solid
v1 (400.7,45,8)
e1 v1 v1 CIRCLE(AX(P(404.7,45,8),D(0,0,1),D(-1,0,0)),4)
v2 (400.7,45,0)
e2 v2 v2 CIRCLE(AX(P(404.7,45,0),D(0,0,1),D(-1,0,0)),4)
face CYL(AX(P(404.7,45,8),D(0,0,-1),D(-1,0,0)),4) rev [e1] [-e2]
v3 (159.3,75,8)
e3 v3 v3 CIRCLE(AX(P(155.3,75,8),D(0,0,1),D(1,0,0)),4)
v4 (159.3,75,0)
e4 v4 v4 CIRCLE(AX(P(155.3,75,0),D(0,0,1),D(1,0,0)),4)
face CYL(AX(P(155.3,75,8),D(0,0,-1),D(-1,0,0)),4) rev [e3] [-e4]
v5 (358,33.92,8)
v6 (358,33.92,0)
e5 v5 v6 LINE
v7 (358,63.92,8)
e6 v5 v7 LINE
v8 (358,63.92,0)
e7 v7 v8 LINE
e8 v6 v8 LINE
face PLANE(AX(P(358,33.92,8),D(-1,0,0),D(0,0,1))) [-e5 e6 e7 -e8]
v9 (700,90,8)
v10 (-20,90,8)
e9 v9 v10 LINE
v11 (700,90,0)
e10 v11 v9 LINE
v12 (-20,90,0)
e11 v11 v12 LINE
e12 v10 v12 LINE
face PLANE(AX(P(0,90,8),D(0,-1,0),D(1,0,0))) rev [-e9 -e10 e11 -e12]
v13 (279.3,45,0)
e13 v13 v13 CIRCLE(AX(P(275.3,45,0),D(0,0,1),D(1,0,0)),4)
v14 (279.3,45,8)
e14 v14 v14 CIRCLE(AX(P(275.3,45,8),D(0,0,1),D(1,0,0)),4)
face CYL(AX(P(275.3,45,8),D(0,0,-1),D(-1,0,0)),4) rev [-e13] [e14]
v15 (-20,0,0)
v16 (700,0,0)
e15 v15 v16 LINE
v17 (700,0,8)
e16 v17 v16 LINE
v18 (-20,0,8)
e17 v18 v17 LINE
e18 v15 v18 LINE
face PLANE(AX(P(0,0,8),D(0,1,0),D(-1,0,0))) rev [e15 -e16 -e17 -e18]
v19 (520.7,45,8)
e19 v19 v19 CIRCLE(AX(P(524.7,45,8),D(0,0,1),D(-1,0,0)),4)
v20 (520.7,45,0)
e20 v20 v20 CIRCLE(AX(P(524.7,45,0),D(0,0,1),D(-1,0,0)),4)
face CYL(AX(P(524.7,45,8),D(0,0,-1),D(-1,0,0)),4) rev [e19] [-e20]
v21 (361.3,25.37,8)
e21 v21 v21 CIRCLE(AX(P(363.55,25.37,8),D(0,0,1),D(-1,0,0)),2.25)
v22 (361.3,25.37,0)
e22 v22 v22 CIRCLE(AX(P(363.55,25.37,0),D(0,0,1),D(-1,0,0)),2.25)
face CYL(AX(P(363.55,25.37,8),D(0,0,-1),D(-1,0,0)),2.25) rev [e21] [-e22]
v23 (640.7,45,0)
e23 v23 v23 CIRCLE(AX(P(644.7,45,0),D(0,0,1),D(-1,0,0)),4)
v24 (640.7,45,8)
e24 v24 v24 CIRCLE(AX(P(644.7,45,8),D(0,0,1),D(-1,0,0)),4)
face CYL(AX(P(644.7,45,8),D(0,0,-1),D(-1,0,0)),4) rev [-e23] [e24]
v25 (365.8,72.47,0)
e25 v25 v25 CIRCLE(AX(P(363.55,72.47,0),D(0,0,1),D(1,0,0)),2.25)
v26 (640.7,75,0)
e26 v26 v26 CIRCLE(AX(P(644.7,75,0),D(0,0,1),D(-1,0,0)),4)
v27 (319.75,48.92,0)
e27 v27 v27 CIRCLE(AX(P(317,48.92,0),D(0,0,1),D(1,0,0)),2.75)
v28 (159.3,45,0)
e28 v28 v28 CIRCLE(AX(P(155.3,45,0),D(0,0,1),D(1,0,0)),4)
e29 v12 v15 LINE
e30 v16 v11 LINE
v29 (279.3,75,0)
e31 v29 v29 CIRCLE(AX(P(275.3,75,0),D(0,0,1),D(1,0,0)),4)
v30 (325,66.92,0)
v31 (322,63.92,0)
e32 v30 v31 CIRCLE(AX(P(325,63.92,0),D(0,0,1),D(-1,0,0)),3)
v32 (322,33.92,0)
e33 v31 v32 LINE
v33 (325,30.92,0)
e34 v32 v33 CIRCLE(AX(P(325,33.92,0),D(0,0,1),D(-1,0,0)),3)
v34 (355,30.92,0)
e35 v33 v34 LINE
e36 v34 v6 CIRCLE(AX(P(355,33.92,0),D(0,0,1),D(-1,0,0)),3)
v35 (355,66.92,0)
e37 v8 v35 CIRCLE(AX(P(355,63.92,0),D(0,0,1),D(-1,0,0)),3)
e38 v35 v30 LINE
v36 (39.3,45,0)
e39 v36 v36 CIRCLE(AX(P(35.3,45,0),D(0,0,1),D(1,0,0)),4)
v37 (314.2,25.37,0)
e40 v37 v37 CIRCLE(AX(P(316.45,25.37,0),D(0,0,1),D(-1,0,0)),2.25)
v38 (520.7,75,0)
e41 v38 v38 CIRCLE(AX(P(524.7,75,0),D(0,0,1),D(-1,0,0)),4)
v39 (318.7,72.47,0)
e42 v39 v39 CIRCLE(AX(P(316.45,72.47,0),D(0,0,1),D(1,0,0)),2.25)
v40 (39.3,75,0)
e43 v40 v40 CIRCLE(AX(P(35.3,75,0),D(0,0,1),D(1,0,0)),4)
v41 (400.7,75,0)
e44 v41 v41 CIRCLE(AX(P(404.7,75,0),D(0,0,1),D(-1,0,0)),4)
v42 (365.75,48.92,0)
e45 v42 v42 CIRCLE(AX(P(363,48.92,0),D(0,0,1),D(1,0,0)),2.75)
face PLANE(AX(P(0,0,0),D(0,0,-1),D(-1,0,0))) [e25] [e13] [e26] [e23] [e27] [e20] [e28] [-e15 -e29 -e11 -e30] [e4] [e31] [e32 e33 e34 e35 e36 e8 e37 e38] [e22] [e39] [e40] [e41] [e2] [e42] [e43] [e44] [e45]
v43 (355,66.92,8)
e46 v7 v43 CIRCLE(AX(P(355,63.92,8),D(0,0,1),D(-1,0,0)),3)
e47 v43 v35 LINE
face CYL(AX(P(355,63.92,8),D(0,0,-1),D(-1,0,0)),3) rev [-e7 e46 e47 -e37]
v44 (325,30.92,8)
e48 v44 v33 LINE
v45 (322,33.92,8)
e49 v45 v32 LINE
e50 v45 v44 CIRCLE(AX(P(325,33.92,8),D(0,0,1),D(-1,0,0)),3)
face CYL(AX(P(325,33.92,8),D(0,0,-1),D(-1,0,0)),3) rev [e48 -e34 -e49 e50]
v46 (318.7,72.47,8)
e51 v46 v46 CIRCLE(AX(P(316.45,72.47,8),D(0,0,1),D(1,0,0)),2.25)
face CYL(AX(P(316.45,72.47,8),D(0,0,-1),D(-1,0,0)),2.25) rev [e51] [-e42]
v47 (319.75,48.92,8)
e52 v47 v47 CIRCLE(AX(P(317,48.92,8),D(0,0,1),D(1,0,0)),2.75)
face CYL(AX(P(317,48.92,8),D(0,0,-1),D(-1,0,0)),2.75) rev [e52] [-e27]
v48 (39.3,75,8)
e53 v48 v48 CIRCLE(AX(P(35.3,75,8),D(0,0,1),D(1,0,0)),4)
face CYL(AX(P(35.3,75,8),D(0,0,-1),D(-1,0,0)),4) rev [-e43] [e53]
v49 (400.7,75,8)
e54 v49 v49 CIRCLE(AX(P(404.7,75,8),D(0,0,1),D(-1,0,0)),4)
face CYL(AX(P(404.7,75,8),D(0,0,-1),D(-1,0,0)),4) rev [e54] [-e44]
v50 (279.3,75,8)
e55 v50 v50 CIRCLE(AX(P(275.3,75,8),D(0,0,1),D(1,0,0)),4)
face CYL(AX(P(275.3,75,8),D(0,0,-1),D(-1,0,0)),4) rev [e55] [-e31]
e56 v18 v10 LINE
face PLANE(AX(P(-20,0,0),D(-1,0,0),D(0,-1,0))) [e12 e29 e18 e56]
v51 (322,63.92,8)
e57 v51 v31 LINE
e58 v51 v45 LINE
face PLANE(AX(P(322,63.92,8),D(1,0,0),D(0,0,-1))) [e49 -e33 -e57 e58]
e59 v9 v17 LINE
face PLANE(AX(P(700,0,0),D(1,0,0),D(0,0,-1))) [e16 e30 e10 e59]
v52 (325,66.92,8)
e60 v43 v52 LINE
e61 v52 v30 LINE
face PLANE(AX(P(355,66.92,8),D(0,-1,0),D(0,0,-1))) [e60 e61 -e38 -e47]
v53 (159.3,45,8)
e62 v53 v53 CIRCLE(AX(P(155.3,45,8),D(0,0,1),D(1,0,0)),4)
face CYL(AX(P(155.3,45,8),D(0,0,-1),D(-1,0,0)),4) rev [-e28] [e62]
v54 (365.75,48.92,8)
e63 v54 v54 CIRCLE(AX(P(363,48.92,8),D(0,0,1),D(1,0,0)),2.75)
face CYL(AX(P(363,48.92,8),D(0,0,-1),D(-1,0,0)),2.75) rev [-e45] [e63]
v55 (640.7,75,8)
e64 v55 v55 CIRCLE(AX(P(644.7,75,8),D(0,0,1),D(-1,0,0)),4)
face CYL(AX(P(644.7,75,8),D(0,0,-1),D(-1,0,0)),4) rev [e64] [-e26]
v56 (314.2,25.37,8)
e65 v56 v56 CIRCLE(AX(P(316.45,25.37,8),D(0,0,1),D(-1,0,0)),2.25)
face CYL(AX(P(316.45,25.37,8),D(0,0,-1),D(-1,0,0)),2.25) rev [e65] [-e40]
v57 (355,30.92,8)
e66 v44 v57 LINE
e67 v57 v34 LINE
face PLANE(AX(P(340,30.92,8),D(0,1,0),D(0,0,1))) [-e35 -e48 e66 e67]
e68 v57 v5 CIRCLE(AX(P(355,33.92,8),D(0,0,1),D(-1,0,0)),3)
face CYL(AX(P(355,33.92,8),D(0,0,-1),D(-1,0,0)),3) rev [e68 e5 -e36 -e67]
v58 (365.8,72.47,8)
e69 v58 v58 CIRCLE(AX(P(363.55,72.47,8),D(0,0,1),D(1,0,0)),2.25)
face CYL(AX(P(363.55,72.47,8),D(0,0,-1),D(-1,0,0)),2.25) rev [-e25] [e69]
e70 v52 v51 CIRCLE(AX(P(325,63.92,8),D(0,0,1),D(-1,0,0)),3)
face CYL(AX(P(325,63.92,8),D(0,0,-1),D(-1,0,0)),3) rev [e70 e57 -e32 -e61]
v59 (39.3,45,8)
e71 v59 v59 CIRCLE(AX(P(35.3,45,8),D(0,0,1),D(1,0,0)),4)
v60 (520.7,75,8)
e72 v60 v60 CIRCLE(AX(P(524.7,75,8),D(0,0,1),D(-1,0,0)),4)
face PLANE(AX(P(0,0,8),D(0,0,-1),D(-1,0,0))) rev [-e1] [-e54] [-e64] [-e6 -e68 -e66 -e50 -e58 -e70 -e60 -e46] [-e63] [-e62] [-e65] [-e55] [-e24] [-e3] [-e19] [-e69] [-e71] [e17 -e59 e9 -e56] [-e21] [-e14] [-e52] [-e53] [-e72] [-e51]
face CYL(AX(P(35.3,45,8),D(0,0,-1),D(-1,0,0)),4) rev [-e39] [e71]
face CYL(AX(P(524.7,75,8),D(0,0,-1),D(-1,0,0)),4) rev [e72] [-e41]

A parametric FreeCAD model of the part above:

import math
import FreeCAD as App
import Part
import Sketcher

V = App.Vector
Q = App.Units.Quantity

doc = App.newDocument("Part")
body = doc.addObject("PartDesign::Body", "Body")

# Sketch on XY plane
sketch1 = body.newObject("Sketcher::SketchObject", "Sketch")
sketch1.AttachmentSupport = (doc.getObject("XY_Plane"), [""])
sketch1.MapMode = "FlatFace"
sketch1.addGeometry([
    Part.LineSegment(V(0, 90, 0), V(0, 0, 0)),  # 0
    Part.LineSegment(V(0, 0, 0), V(680, 0, 0)),  # 1
    Part.LineSegment(V(680, 0, 0), V(680, 90, 0)),  # 2
    Part.LineSegment(V(680, 90, 0), V(0, 90, 0)),  # 3
    Part.Circle(V(316.45, 25.37, 0), V(0, 0, 1), 2.25),  # 4
    Part.Circle(V(35.3, 45, 0), V(0, 0, 1), 4),  # 5
    Part.Circle(V(155.3, 45, 0), V(0, 0, 1), 4),  # 6
    Part.Circle(V(275.3, 45, 0), V(0, 0, 1), 4),  # 7
    Part.Circle(V(317, 48.92, 0), V(0, 0, 1), 2.75),  # 8
    Part.ArcOfCircle(Part.Circle(V(355, 33.92, 0), V(0, 0, 1), 3), math.radians(-90), math.radians(0)),  # 9
    Part.LineSegment(V(355, 30.92, 0), V(325, 30.92, 0)),  # 10
    Part.ArcOfCircle(Part.Circle(V(325, 33.92, 0), V(0, 0, 1), 3), math.radians(180), math.radians(270)),  # 11
    Part.LineSegment(V(322, 33.92, 0), V(322, 63.92, 0)),  # 12
    Part.ArcOfCircle(Part.Circle(V(325, 63.92, 0), V(0, 0, 1), 3), math.radians(90), math.radians(180)),  # 13
    Part.LineSegment(V(325, 66.92, 0), V(355, 66.92, 0)),  # 14
    Part.ArcOfCircle(Part.Circle(V(355, 63.92, 0), V(0, 0, 1), 3), math.radians(0), math.radians(90)),  # 15
    Part.LineSegment(V(358, 63.92, 0), V(358, 33.92, 0)),  # 16
    Part.Circle(V(363.55, 25.37, 0), V(0, 0, 1), 2.25),  # 17
    Part.Circle(V(404.7, 45, 0), V(0, 0, 1), 4),  # 18
    Part.Circle(V(363, 48.92, 0), V(0, 0, 1), 2.75),  # 19
    Part.Circle(V(524.7, 45, 0), V(0, 0, 1), 4),  # 20
    Part.Circle(V(644.7, 45, 0), V(0, 0, 1), 4),  # 21
    Part.Circle(V(35.3, 75, 0), V(0, 0, 1), 4),  # 22
    Part.Circle(V(155.3, 75, 0), V(0, 0, 1), 4),  # 23
    Part.Circle(V(275.3, 75, 0), V(0, 0, 1), 4),  # 24
    Part.Circle(V(316.45, 72.47, 0), V(0, 0, 1), 2.25),  # 25
    Part.Circle(V(363.55, 72.47, 0), V(0, 0, 1), 2.25),  # 26
    Part.Circle(V(404.7, 75, 0), V(0, 0, 1), 4),  # 27
    Part.Circle(V(524.7, 75, 0), V(0, 0, 1), 4),  # 28
    Part.Circle(V(644.7, 75, 0), V(0, 0, 1), 4),  # 29
], False)
sketch1.addConstraint([
    Sketcher.Constraint("Coincident", 0, 2, 1, 1),
    Sketcher.Constraint("Coincident", 1, 2, 2, 1),
    Sketcher.Constraint("Coincident", 2, 2, 3, 1),
    Sketcher.Constraint("Coincident", 3, 2, 0, 1),
    Sketcher.Constraint("Tangent", 9, 1, 10, 1),
    Sketcher.Constraint("Tangent", 10, 2, 11, 2),
    Sketcher.Constraint("Tangent", 11, 1, 12, 1),
    Sketcher.Constraint("Tangent", 12, 2, 13, 2),
    Sketcher.Constraint("Tangent", 13, 1, 14, 1),
    Sketcher.Constraint("Tangent", 14, 2, 15, 2),
    Sketcher.Constraint("Tangent", 15, 1, 16, 1),
    Sketcher.Constraint("Tangent", 16, 2, 9, 2),
    Sketcher.Constraint("Vertical", 0),
    Sketcher.Constraint("Horizontal", 1),
    Sketcher.Constraint("Vertical", 2),
    Sketcher.Constraint("Horizontal", 3),
    Sketcher.Constraint("Horizontal", 10),
    Sketcher.Constraint("Vertical", 12),
    Sketcher.Constraint("Horizontal", 14),
    Sketcher.Constraint("Vertical", 16),
    Sketcher.Constraint("Coincident", 0, 2, -1, 1),
    Sketcher.Constraint("Equal", 5, 6),
    Sketcher.Constraint("Equal", 6, 7),
    Sketcher.Constraint("Equal", 9, 11),
    Sketcher.Constraint("Equal", 11, 13),
    Sketcher.Constraint("Equal", 13, 15),
    Sketcher.Constraint("Equal", 4, 17),
    Sketcher.Constraint("Equal", 7, 18),
    Sketcher.Constraint("Equal", 8, 19),
    Sketcher.Constraint("Equal", 18, 20),
    Sketcher.Constraint("Equal", 20, 21),
    Sketcher.Constraint("Equal", 21, 22),
    Sketcher.Constraint("Equal", 22, 23),
    Sketcher.Constraint("Equal", 23, 24),
    Sketcher.Constraint("Equal", 17, 25),
    Sketcher.Constraint("Equal", 25, 26),
    Sketcher.Constraint("Equal", 24, 27),
    Sketcher.Constraint("Equal", 27, 28),
    Sketcher.Constraint("Equal", 28, 29),
    Sketcher.Constraint("Horizontal", 5, 3, 6, 3),
    Sketcher.Constraint("Horizontal", 6, 3, 7, 3),
    Sketcher.Constraint("Horizontal", 4, 3, 17, 3),
    Sketcher.Constraint("Horizontal", 7, 3, 18, 3),
    Sketcher.Constraint("Horizontal", 8, 3, 19, 3),
    Sketcher.Constraint("Horizontal", 18, 3, 20, 3),
    Sketcher.Constraint("Horizontal", 20, 3, 21, 3),
    Sketcher.Constraint("Horizontal", 22, 3, 23, 3),
    Sketcher.Constraint("Horizontal", 23, 3, 24, 3),
    Sketcher.Constraint("Horizontal", 25, 3, 26, 3),
    Sketcher.Constraint("Horizontal", 24, 3, 27, 3),
    Sketcher.Constraint("Horizontal", 27, 3, 28, 3),
    Sketcher.Constraint("Horizontal", 28, 3, 29, 3),
    Sketcher.Constraint("Vertical", 5, 3, 22, 3),
    Sketcher.Constraint("Vertical", 6, 3, 23, 3),
    Sketcher.Constraint("Vertical", 7, 3, 24, 3),
    Sketcher.Constraint("Vertical", 4, 3, 25, 3),
    Sketcher.Constraint("Vertical", 17, 3, 26, 3),
    Sketcher.Constraint("Vertical", 18, 3, 27, 3),
    Sketcher.Constraint("Vertical", 20, 3, 28, 3),
    Sketcher.Constraint("Vertical", 21, 3, 29, 3),
    Sketcher.Constraint("Equal", 14, 12),
    Sketcher.Constraint("Diameter", 5, Q("8 mm")),
    Sketcher.Constraint("Radius", 9, Q("3 mm")),
    Sketcher.Constraint("Diameter", 4, Q("4.5 mm")),
    Sketcher.Constraint("Diameter", 8, Q("5.5 mm")),
    Sketcher.Constraint("DistanceX", 1, 1, 1, 2, Q("680 mm")),
    Sketcher.Constraint("DistanceX", 10, 2, 10, 1, Q("30 mm")),
    Sketcher.Constraint("DistanceY", 0, 2, 0, 1, Q("90 mm")),
    Sketcher.Constraint("DistanceY", -1, 1, 5, 3, Q("45 mm")),
    Sketcher.Constraint("DistanceX", -1, 1, 8, 3, Q("317 mm")),
    Sketcher.Constraint("DistanceX", -1, 1, 9, 3, Q("355 mm")),
    Sketcher.Constraint("DistanceX", -1, 1, 19, 3, Q("363 mm")),
    Sketcher.Constraint("DistanceY", -1, 1, 22, 3, Q("75 mm")),
    Sketcher.Constraint("DistanceX", 5, 3, 6, 3, Q("120 mm")),
    Sketcher.Constraint("DistanceX", 6, 3, 7, 3, Q("120 mm")),
    Sketcher.Constraint("DistanceY", 9, 3, 8, 3, Q("15 mm")),
    Sketcher.Constraint("DistanceX", 18, 3, 20, 3, Q("120 mm")),
    Sketcher.Constraint("DistanceX", 20, 3, 21, 3, Q("120 mm")),
    Sketcher.Constraint("DistanceX", -1, 1, 5, 3, Q("35.3 mm")),
    Sketcher.Constraint("DistanceX", -1, 1, 18, 3, Q("404.7 mm")),
    Sketcher.Constraint("DistanceX", 4, 3, 17, 3, Q("47.1 mm")),
    Sketcher.Constraint("DistanceY", 17, 3, 26, 3, Q("47.1 mm")),
    Sketcher.Constraint("DistanceX", -1, 1, 4, 3, Q("316.45 mm")),
    Sketcher.Constraint("DistanceY", -1, 1, 4, 3, Q("25.37 mm")),
    Sketcher.Constraint("DistanceY", -1, 1, 8, 3, Q("48.92 mm")),
])
pad1 = body.newObject("PartDesign::Pad", "Pad")
pad1.Profile = sketch1
pad1.Length = 8

# Sketch on YZ plane
sketch2 = body.newObject("Sketcher::SketchObject", "Sketch001")
sketch2.AttachmentSupport = (doc.getObject("YZ_Plane"), [""])
sketch2.MapMode = "FlatFace"
sketch2.AttachmentOffset = App.Placement(V(0, 0, 680), App.Rotation())
sketch2.addGeometry([
    Part.LineSegment(V(90, 8, 0), V(0, 8, 0)),
    Part.LineSegment(V(0, 8, 0), V(0, 0, 0)),
    Part.LineSegment(V(0, 0, 0), V(90, 0, 0)),
    Part.LineSegment(V(90, 0, 0), V(90, 8, 0)),
], False)
sketch2.addConstraint([
    Sketcher.Constraint("Coincident", 0, 2, 1, 1),
    Sketcher.Constraint("Coincident", 1, 2, 2, 1),
    Sketcher.Constraint("Coincident", 2, 2, 3, 1),
    Sketcher.Constraint("Coincident", 3, 2, 0, 1),
    Sketcher.Constraint("Horizontal", 0),
    Sketcher.Constraint("Vertical", 1),
    Sketcher.Constraint("Horizontal", 2),
    Sketcher.Constraint("Vertical", 3),
    Sketcher.Constraint("Coincident", 1, 2, -1, 1),
    Sketcher.Constraint("DistanceX", 0, 2, 0, 1, Q("90 mm")),
    Sketcher.Constraint("DistanceY", 1, 2, 1, 1, Q("8 mm")),
])
pad2 = body.newObject("PartDesign::Pad", "Pad001")
pad2.Profile = sketch2
pad2.Length = 20

# Sketch on YZ plane
sketch3 = body.newObject("Sketcher::SketchObject", "Sketch002")
sketch3.AttachmentSupport = (doc.getObject("YZ_Plane"), [""])
sketch3.MapMode = "FlatFace"
sketch3.addGeometry([
    Part.LineSegment(V(90, 0, 0), V(0, 0, 0)),
    Part.LineSegment(V(0, 0, 0), V(0, 8, 0)),
    Part.LineSegment(V(0, 8, 0), V(90, 8, 0)),
    Part.LineSegment(V(90, 8, 0), V(90, 0, 0)),
], False)
sketch3.addConstraint([
    Sketcher.Constraint("Coincident", 0, 2, 1, 1),
    Sketcher.Constraint("Coincident", 1, 2, 2, 1),
    Sketcher.Constraint("Coincident", 2, 2, 3, 1),
    Sketcher.Constraint("Coincident", 3, 2, 0, 1),
    Sketcher.Constraint("Horizontal", 0),
    Sketcher.Constraint("Vertical", 1),
    Sketcher.Constraint("Horizontal", 2),
    Sketcher.Constraint("Vertical", 3),
    Sketcher.Constraint("Coincident", 0, 2, -1, 1),
    Sketcher.Constraint("DistanceX", 0, 2, 0, 1, Q("90 mm")),
    Sketcher.Constraint("DistanceY", 1, 1, 1, 2, Q("8 mm")),
])
pad3 = body.newObject("PartDesign::Pad", "Pad002")
pad3.Profile = sketch3
pad3.Length = 20
pad3.Reversed = True

doc.recompute()
